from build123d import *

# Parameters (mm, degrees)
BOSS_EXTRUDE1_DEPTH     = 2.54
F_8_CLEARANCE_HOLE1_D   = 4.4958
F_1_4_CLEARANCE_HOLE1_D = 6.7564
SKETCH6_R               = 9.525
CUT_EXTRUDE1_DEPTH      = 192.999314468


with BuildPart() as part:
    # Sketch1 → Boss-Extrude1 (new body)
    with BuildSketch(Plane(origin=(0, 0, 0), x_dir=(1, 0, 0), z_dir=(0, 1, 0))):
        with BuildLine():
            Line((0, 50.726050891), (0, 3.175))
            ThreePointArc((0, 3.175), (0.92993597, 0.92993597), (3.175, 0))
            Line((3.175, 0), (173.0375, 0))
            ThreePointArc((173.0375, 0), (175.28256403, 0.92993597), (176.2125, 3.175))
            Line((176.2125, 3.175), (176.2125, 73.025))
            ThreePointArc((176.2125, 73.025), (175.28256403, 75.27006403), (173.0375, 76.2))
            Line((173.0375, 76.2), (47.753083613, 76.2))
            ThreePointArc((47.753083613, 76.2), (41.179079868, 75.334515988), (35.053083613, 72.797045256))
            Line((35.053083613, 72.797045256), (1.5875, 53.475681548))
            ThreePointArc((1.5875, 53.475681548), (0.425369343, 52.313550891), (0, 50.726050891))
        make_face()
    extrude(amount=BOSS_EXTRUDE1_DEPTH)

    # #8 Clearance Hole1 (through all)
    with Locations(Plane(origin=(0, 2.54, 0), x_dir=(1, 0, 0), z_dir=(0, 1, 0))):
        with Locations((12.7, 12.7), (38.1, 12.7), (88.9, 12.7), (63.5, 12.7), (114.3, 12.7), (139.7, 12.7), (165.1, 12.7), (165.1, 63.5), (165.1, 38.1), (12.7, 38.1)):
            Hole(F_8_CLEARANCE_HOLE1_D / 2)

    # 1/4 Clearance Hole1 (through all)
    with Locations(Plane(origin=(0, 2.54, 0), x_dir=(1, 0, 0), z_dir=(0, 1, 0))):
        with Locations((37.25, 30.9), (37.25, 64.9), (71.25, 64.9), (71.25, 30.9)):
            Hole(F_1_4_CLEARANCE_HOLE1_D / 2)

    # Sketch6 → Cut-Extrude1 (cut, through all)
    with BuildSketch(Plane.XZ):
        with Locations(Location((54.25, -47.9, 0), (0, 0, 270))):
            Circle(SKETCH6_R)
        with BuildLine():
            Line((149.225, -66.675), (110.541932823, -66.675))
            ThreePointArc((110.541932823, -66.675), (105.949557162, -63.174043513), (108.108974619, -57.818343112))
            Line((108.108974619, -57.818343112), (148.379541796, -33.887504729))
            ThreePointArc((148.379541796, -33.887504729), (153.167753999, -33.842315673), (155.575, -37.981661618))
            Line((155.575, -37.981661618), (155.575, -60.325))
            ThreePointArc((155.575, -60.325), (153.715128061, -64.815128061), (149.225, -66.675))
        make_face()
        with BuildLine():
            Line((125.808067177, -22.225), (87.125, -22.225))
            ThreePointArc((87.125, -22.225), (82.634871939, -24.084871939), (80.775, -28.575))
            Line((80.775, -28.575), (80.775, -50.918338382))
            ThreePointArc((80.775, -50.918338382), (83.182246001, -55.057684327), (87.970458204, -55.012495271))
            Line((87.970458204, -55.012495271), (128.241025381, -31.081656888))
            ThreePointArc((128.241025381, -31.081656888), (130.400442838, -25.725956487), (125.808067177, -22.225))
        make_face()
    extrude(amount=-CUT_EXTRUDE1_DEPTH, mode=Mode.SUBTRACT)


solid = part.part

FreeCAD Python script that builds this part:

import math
import FreeCAD as App
import Part
import Sketcher
from FreeCAD import Vector
Q = App.Units.Quantity

doc = App.newDocument("Part")
body = doc.addObject("PartDesign::Body", "Body")

# Sketch on XZ plane
sketch1 = body.newObject("Sketcher::SketchObject", "Sketch")
sketch1.AttachmentSupport = (doc.getObject("XZ_Plane"), [""])
sketch1.MapMode = "FlatFace"
sketch1.addGeometry(Part.LineSegment(Vector(0, -50.7, 0), Vector(0, -3.2, 0)), False)
sketch1.addGeometry(Part.ArcOfCircle(Part.Circle(Vector(3.2, -3.2, 0), Vector(0, 0, 1), 3.2), math.radians(90), math.radians(180)), False)
sketch1.addGeometry(Part.LineSegment(Vector(3.2, 0, 0), Vector(173, 0, 0)), False)
sketch1.addGeometry(Part.ArcOfCircle(Part.Circle(Vector(173, -3.2, 0), Vector(0, 0, 1), 3.2), math.radians(0), math.radians(90)), False)
sketch1.addGeometry(Part.LineSegment(Vector(176.2, -3.2, 0), Vector(176.2, -73, 0)), False)
sketch1.addGeometry(Part.ArcOfCircle(Part.Circle(Vector(173, -73, 0), Vector(0, 0, 1), 3.2), math.radians(-90), math.radians(0)), False)
sketch1.addGeometry(Part.LineSegment(Vector(173, -76.2, 0), Vector(47.8, -76.2, 0)), False)
sketch1.addGeometry(Part.ArcOfCircle(Part.Circle(Vector(47.8, -50.8, 0), Vector(0, 0, 1), 25.4), math.radians(-120), math.radians(-90)), False)
sketch1.addGeometry(Part.LineSegment(Vector(35.1, -72.8, 0), Vector(1.6, -53.5, 0)), False)
sketch1.addGeometry(Part.ArcOfCircle(Part.Circle(Vector(3.2, -50.7, 0), Vector(0, 0, 1), 3.2), math.radians(180), math.radians(240)), False)
sketch1.addConstraint(Sketcher.Constraint("Tangent", 0, 2, 1, 2))
sketch1.addConstraint(Sketcher.Constraint("Tangent", 1, 1, 2, 1))
sketch1.addConstraint(Sketcher.Constraint("Tangent", 2, 2, 3, 2))
sketch1.addConstraint(Sketcher.Constraint("Tangent", 3, 1, 4, 1))
sketch1.addConstraint(Sketcher.Constraint("Tangent", 4, 2, 5, 2))
sketch1.addConstraint(Sketcher.Constraint("Tangent", 5, 1, 6, 1))
sketch1.addConstraint(Sketcher.Constraint("Tangent", 6, 2, 7, 2))
sketch1.addConstraint(Sketcher.Constraint("Tangent", 7, 1, 8, 1))
sketch1.addConstraint(Sketcher.Constraint("Tangent", 8, 2, 9, 2))
sketch1.addConstraint(Sketcher.Constraint("Tangent", 9, 1, 0, 1))
sketch1.addConstraint(Sketcher.Constraint("Vertical", 0))
sketch1.addConstraint(Sketcher.Constraint("Horizontal", 2))
sketch1.addConstraint(Sketcher.Constraint("Vertical", 4))
sketch1.addConstraint(Sketcher.Constraint("Horizontal", 6))
sketch1.addConstraint(Sketcher.Constraint("Equal", 1, 3))
sketch1.addConstraint(Sketcher.Constraint("Equal", 3, 5))
sketch1.addConstraint(Sketcher.Constraint("Equal", 5, 9))
sketch1.addConstraint(Sketcher.Constraint("PointOnObject", 0, 2, -2))
sketch1.addConstraint(Sketcher.Constraint("PointOnObject", 1, 1, -1))
sketch1.addConstraint(Sketcher.Constraint("Radius", 7, Q("1 in")))
sketch1.addConstraint(Sketcher.Constraint("DistanceY", 7, 3, -1, 1, Q("2 in")))
sketch1.addConstraint(Sketcher.Constraint("Angle", 8, Q("150 deg")))
sketch1.addConstraint(Sketcher.Constraint("Radius", 1, Q("0.125 in")))
sketch1.addConstraint(Sketcher.Constraint("DistanceX", 2, 1, 2, 2, Q("6.6875 in")))
sketch1.addConstraint(Sketcher.Constraint("DistanceY", 0, 1, 0, 2, Q("47.551051 mm")))
pad1 = body.newObject("PartDesign::Pad", "Pad")
pad1.Profile = sketch1
pad1.Length = Q("0.1 in")
pad1.Reversed = True

# Sketch on XZ plane
sketch2 = body.newObject("Sketcher::SketchObject", "Sketch001")
sketch2.AttachmentSupport = (doc.getObject("XZ_Plane"), [""])
sketch2.MapMode = "FlatFace"
sketch2.AttachmentOffset = App.Placement(Vector(0, 0, -0.1 * 25.4), App.Rotation())
sketch2.addGeometry(Part.Circle(Vector(12.7, -12.7, 0), Vector(0, 0, 1), 2.2), False)
sketch2.addGeometry(Part.Circle(Vector(38.1, -12.7, 0), Vector(0, 0, 1), 2.2), False)
sketch2.addGeometry(Part.Circle(Vector(88.9, -12.7, 0), Vector(0, 0, 1), 2.2), False)
sketch2.addGeometry(Part.Circle(Vector(63.5, -12.7, 0), Vector(0, 0, 1), 2.2), False)
sketch2.addGeometry(Part.Circle(Vector(114.3, -12.7, 0), Vector(0, 0, 1), 2.2), False)
sketch2.addGeometry(Part.Circle(Vector(139.7, -12.7, 0), Vector(0, 0, 1), 2.2), False)
sketch2.addGeometry(Part.Circle(Vector(165.1, -12.7, 0), Vector(0, 0, 1), 2.2), False)
sketch2.addGeometry(Part.Circle(Vector(165.1, -63.5, 0), Vector(0, 0, 1), 2.2), False)
sketch2.addGeometry(Part.Circle(Vector(165.1, -38.1, 0), Vector(0, 0, 1), 2.2), False)
sketch2.addGeometry(Part.Circle(Vector(12.7, -38.1, 0), Vector(0, 0, 1), 2.2), False)
sketch2.addConstraint(Sketcher.Constraint("Equal", 0, 1))
sketch2.addConstraint(Sketcher.Constraint("Equal", 1, 2))
sketch2.addConstraint(Sketcher.Constraint("Equal", 2, 3))
sketch2.addConstraint(Sketcher.Constraint("Equal", 3, 4))
sketch2.addConstraint(Sketcher.Constraint("Equal", 4, 5))
sketch2.addConstraint(Sketcher.Constraint("Equal", 5, 6))
sketch2.addConstraint(Sketcher.Constraint("Equal", 6, 7))
sketch2.addConstraint(Sketcher.Constraint("Equal", 7, 8))
sketch2.addConstraint(Sketcher.Constraint("Equal", 8, 9))
sketch2.addConstraint(Sketcher.Constraint("Horizontal", 0, 3, 1, 3))
sketch2.addConstraint(Sketcher.Constraint("Horizontal", 1, 3, 2, 3))
sketch2.addConstraint(Sketcher.Constraint("Horizontal", 2, 3, 3, 3))
sketch2.addConstraint(Sketcher.Constraint("Horizontal", 3, 3, 4, 3))
sketch2.addConstraint(Sketcher.Constraint("Horizontal", 4, 3, 5, 3))
sketch2.addConstraint(Sketcher.Constraint("Horizontal", 5, 3, 6, 3))
sketch2.addConstraint(Sketcher.Constraint("Horizontal", 8, 3, 9, 3))
sketch2.addConstraint(Sketcher.Constraint("Vertical", 6, 3, 7, 3))
sketch2.addConstraint(Sketcher.Constraint("Vertical", 7, 3, 8, 3))
sketch2.addConstraint(Sketcher.Constraint("Vertical", 0, 3, 9, 3))
sketch2.addConstraint(Sketcher.Constraint("Diameter", 0, Q("0.177 in")))
sketch2.addConstraint(Sketcher.Constraint("DistanceX", 0, 3, 1, 3, Q("1 in")))
sketch2.addConstraint(Sketcher.Constraint("DistanceX", 1, 3, 2, 3, Q("2 in")))
sketch2.addConstraint(Sketcher.Constraint("DistanceX", 1, 3, 3, 3, Q("1 in")))
sketch2.addConstraint(Sketcher.Constraint("DistanceX", 2, 3, 4, 3, Q("1 in")))
sketch2.addConstraint(Sketcher.Constraint("DistanceX", 4, 3, 5, 3, Q("1 in")))
sketch2.addConstraint(Sketcher.Constraint("DistanceX", 5, 3, 6, 3, Q("1 in")))
sketch2.addConstraint(Sketcher.Constraint("DistanceY", 7, 3, 6, 3, Q("2 in")))
sketch2.addConstraint(Sketcher.Constraint("DistanceY", 7, 3, 8, 3, Q("1 in")))
sketch2.addConstraint(Sketcher.Constraint("DistanceX", -1, 1, 0, 3, Q("0.5 in")))
sketch2.addConstraint(Sketcher.Constraint("DistanceY", 0, 3, -1, 1, Q("0.5 in")))
doc.recompute()
hole = body.newObject("PartDesign::Hole", "Hole")
hole.Profile = sketch2
hole.ThreadType = "None"
hole.Diameter = Q("0.177 in")
hole.DepthType = "ThroughAll"
hole.Reversed = True

# Sketch on XZ plane
sketch3 = body.newObject("Sketcher::SketchObject", "Sketch002")
sketch3.AttachmentSupport = (doc.getObject("XZ_Plane"), [""])
sketch3.MapMode = "FlatFace"
sketch3.AttachmentOffset = App.Placement(Vector(0, 0, -0.1 * 25.4), App.Rotation())
sketch3.addGeometry(Part.Circle(Vector(37.2, -30.9, 0), Vector(0, 0, 1), 3.4), False)
sketch3.addGeometry(Part.Circle(Vector(37.2, -64.9, 0), Vector(0, 0, 1), 3.4), False)
sketch3.addGeometry(Part.Circle(Vector(71.2, -64.9, 0), Vector(0, 0, 1), 3.4), False)
sketch3.addGeometry(Part.Circle(Vector(71.2, -30.9, 0), Vector(0, 0, 1), 3.4), False)
sketch3.addConstraint(Sketcher.Constraint("Equal", 0, 1))
sketch3.addConstraint(Sketcher.Constraint("Equal", 1, 2))
sketch3.addConstraint(Sketcher.Constraint("Equal", 2, 3))
sketch3.addConstraint(Sketcher.Constraint("Horizontal", 1, 3, 2, 3))
sketch3.addConstraint(Sketcher.Constraint("Horizontal", 0, 3, 3, 3))
sketch3.addConstraint(Sketcher.Constraint("Vertical", 0, 3, 1, 3))
sketch3.addConstraint(Sketcher.Constraint("Vertical", 2, 3, 3, 3))
sketch3.addConstraint(Sketcher.Constraint("Diameter", 0, Q("0.266 in")))
sketch3.addConstraint(Sketcher.Constraint("DistanceX", -1, 1, 0, 3, Q("37.25 mm")))
sketch3.addConstraint(Sketcher.Constraint("DistanceY", 0, 3, -1, 1, Q("30.9 mm")))
sketch3.addConstraint(Sketcher.Constraint("DistanceY", 1, 3, -1, 1, Q("64.9 mm")))
sketch3.addConstraint(Sketcher.Constraint("DistanceX", -1, 1, 2, 3, Q("71.25 mm")))
doc.recompute()
hole2 = body.newObject("PartDesign::Hole", "Hole001")
hole2.Profile = sketch3
hole2.ThreadType = "None"
hole2.Diameter = Q("0.266 in")
hole2.DepthType = "ThroughAll"
hole2.Reversed = True

# Sketch on XZ plane
sketch4 = body.newObject("Sketcher::SketchObject", "Sketch003")
sketch4.AttachmentSupport = (doc.getObject("XZ_Plane"), [""])
sketch4.MapMode = "FlatFace"
sketch4.addGeometry(Part.Circle(Vector(54.2, -47.9, 0), Vector(0, 0, 1), 9.5), False)
sketch4.addGeometry(Part.LineSegment(Vector(110.5, -66.7, 0), Vector(149.2, -66.7, 0)), False)
sketch4.addGeometry(Part.ArcOfCircle(Part.Circle(Vector(149.2, -60.3, 0), Vector(0, 0, 1), 6.3), math.radians(-90), math.radians(0)), False)
sketch4.addGeometry(Part.LineSegment(Vector(155.6, -60.3, 0), Vector(155.6, -38, 0)), False)
sketch4.addGeometry(Part.ArcOfCircle(Part.Circle(Vector(150.8, -38, 0), Vector(0, 0, 1), 4.8), math.radians(0), math.radians(121)), False)
sketch4.addGeometry(Part.LineSegment(Vector(148.4, -33.9, 0), Vector(108.1, -57.8, 0)), False)
sketch4.addGeometry(Part.ArcOfCircle(Part.Circle(Vector(110.5, -61.9, 0), Vector(0, 0, 1), 4.8), math.radians(121), math.radians(270)), False)
sketch4.addGeometry(Part.LineSegment(Vector(125.8, -22.2, 0), Vector(87.1, -22.2, 0)), False)
sketch4.addGeometry(Part.ArcOfCircle(Part.Circle(Vector(87.1, -28.6, 0), Vector(0, 0, 1), 6.3), math.radians(90), math.radians(180)), False)
sketch4.addGeometry(Part.LineSegment(Vector(80.8, -28.6, 0), Vector(80.8, -50.9, 0)), False)
sketch4.addGeometry(Part.ArcOfCircle(Part.Circle(Vector(85.5, -50.9, 0), Vector(0, 0, 1), 4.8), math.radians(180), math.radians(301)), False)
sketch4.addGeometry(Part.LineSegment(Vector(88, -55, 0), Vector(128.2, -31.1, 0)), False)
sketch4.addGeometry(Part.ArcOfCircle(Part.Circle(Vector(125.8, -27, 0), Vector(0, 0, 1), 4.8), math.radians(-59), math.radians(90)), False)
sketch4.addConstraint(Sketcher.Constraint("Tangent", 1, 2, 2, 1))
sketch4.addConstraint(Sketcher.Constraint("Tangent", 2, 2, 3, 1))
sketch4.addConstraint(Sketcher.Constraint("Tangent", 3, 2, 4, 1))
sketch4.addConstraint(Sketcher.Constraint("Tangent", 4, 2, 5, 1))
sketch4.addConstraint(Sketcher.Constraint("Tangent", 5, 2, 6, 1))
sketch4.addConstraint(Sketcher.Constraint("Tangent", 6, 2, 1, 1))
sketch4.addConstraint(Sketcher.Constraint("Tangent", 7, 2, 8, 1))
sketch4.addConstraint(Sketcher.Constraint("Tangent", 8, 2, 9, 1))
sketch4.addConstraint(Sketcher.Constraint("Tangent", 9, 2, 10, 1))
sketch4.addConstraint(Sketcher.Constraint("Tangent", 10, 2, 11, 1))
sketch4.addConstraint(Sketcher.Constraint("Tangent", 11, 2, 12, 1))
sketch4.addConstraint(Sketcher.Constraint("Tangent", 12, 2, 7, 1))
sketch4.addConstraint(Sketcher.Constraint("Horizontal", 1))
sketch4.addConstraint(Sketcher.Constraint("Vertical", 3))
sketch4.addConstraint(Sketcher.Constraint("Horizontal", 7))
sketch4.addConstraint(Sketcher.Constraint("Vertical", 9))
sketch4.addConstraint(Sketcher.Constraint("Equal", 4, 6))
sketch4.addConstraint(Sketcher.Constraint("Equal", 2, 8))
sketch4.addConstraint(Sketcher.Constraint("Equal", 6, 10))
sketch4.addConstraint(Sketcher.Constraint("Equal", 10, 12))
sketch4.addConstraint(Sketcher.Constraint("Parallel", 5, 11))
sketch4.addConstraint(Sketcher.Constraint("Equal", 1, 7))
sketch4.addConstraint(Sketcher.Constraint("Diameter", 0, Q("0.75 in")))
sketch4.addConstraint(Sketcher.Constraint("Radius", 2, Q("0.25 in")))
sketch4.addConstraint(Sketcher.Constraint("Radius", 4, Q("0.1875 in")))
sketch4.addConstraint(Sketcher.Constraint("DistanceY", 2, 3, 8, 3, Q("1.25 in")))
sketch4.addConstraint(Sketcher.Constraint("DistanceX", -1, 1, 2, 3, Q("5.875 in")))
sketch4.addConstraint(Sketcher.Constraint("DistanceY", 2, 3, -1, 1, Q("2.375 in")))
sketch4.addConstraint(Sketcher.Constraint("DistanceY", 3, 1, 3, 2, Q("22.343338 mm")))
sketch4.addConstraint(Sketcher.Constraint("DistanceX", -1, 1, 0, 3, Q("54.25 mm")))
sketch4.addConstraint(Sketcher.Constraint("DistanceY", 0, 3, -1, 1, Q("47.9 mm")))
sketch4.addConstraint(Sketcher.Constraint("DistanceX", -1, 1, 8, 3, Q("87.125 mm")))
sketch4.addConstraint(Sketcher.Constraint("Distance", 5, Q("46.844462 mm")))
pocket1 = body.newObject("PartDesign::Pocket", "Pocket")
pocket1.Profile = sketch4
pocket1.Type = "ThroughAll"

doc.recompute()
